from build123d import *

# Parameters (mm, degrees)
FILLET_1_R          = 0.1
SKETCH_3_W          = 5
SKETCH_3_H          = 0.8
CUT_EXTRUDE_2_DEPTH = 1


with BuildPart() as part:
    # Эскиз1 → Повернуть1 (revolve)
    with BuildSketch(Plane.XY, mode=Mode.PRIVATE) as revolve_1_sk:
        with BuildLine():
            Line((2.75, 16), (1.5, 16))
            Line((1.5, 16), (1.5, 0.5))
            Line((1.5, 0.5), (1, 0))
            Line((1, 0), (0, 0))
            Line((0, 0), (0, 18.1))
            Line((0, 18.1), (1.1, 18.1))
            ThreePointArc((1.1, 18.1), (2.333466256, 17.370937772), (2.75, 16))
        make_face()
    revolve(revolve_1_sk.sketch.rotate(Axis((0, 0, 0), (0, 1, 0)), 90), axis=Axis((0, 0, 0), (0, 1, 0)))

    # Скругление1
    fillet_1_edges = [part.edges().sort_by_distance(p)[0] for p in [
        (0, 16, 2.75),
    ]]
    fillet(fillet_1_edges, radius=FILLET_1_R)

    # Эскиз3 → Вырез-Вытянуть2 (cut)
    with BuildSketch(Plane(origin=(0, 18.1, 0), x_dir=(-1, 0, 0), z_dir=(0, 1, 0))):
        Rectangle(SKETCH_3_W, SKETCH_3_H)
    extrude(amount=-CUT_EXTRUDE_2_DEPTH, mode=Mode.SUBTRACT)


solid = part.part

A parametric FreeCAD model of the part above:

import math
import FreeCAD as App
import Part
import Sketcher

V = App.Vector
Q = App.Units.Quantity


def edges_at(feature, points):
    """Names of the edges that pass closest to the given points."""
    edges = feature.Shape.Edges
    near = lambda p: min(range(len(edges)), key=lambda i: edges[i].distToShape(Part.Vertex(*p))[0])
    return sorted({f"Edge{near(p) + 1}" for p in points})


def add_polygon(sketch, points):
    """Adds a closed chain of lines whose ends are joined by coincident constraints."""
    first, n = sketch.GeometryCount, len(points)
    for a, b in zip(points, points[1:] + points[:1]):
        sketch.addGeometry(Part.LineSegment(App.Vector(*a, 0), App.Vector(*b, 0)), False)
    for i in range(n):
        sketch.addConstraint(Sketcher.Constraint("Coincident", first + i, 2, first + (i + 1) % n, 1))

doc = App.newDocument("Part")
body = doc.addObject("PartDesign::Body", "Body")

sketch1 = body.newObject("Sketcher::SketchObject", "Sketch")
sketch1.AttachmentSupport = (doc.getObject("XY_Plane"), [""])
sketch1.MapMode = "FlatFace"
sketch1.addGeometry(Part.LineSegment(V(1.5, 16, 0), V(2.8, 16, 0)), False)
sketch1.addGeometry(Part.ArcOfCircle(Part.Circle(V(0.8, 16.2, 0), V(0, 0, 1), 2), math.radians(-4), math.radians(81)), False)
sketch1.addGeometry(Part.LineSegment(V(1.1, 18.1, 0), V(0, 18.1, 0)), False)
sketch1.addGeometry(Part.LineSegment(V(0, 18.1, 0), V(0, 0, 0)), False)
sketch1.addGeometry(Part.LineSegment(V(0, 0, 0), V(1, 0, 0)), False)
sketch1.addGeometry(Part.LineSegment(V(1, 0, 0), V(1.5, 0.5, 0)), False)
sketch1.addGeometry(Part.LineSegment(V(1.5, 0.5, 0), V(1.5, 16, 0)), False)
sketch1.addConstraint(Sketcher.Constraint("Coincident", 0, 2, 1, 1))
sketch1.addConstraint(Sketcher.Constraint("Coincident", 1, 2, 2, 1))
sketch1.addConstraint(Sketcher.Constraint("Coincident", 2, 2, 3, 1))
sketch1.addConstraint(Sketcher.Constraint("Coincident", 3, 2, 4, 1))
sketch1.addConstraint(Sketcher.Constraint("Coincident", 4, 2, 5, 1))
sketch1.addConstraint(Sketcher.Constraint("Coincident", 5, 2, 6, 1))
sketch1.addConstraint(Sketcher.Constraint("Coincident", 6, 2, 0, 1))
sketch1.addConstraint(Sketcher.Constraint("Horizontal", 0))
sketch1.addConstraint(Sketcher.Constraint("Horizontal", 2))
sketch1.addConstraint(Sketcher.Constraint("Vertical", 3))
sketch1.addConstraint(Sketcher.Constraint("Horizontal", 4))
sketch1.addConstraint(Sketcher.Constraint("Vertical", 6))
sketch1.addConstraint(Sketcher.Constraint("Coincident", 3, 2, -1, 1))
sketch1.addConstraint(Sketcher.Constraint("DistanceX", 4, 1, 4, 2, Q("1 mm")))
sketch1.addConstraint(Sketcher.Constraint("Angle", 5, Q("45 deg")))
sketch1.addConstraint(Sketcher.Constraint("DistanceX", 2, 2, 2, 1, Q("1.1 mm")))
sketch1.addConstraint(Sketcher.Constraint("DistanceY", 3, 2, 3, 1, Q("18.1 mm")))
sketch1.addConstraint(Sketcher.Constraint("DistanceY", 6, 1, 6, 2, Q("15.5 mm")))
sketch1.addConstraint(Sketcher.Constraint("DistanceY", -1, 1, 0, 2, Q("16 mm")))
sketch1.addConstraint(Sketcher.Constraint("DistanceX", 0, 1, 0, 2, Q("1.25 mm")))
sketch1.addConstraint(Sketcher.Constraint("Radius", 1, Q("1.976037 mm")))
revolution = body.newObject("PartDesign::Revolution", "Revolution")
revolution.Profile = sketch1
revolution.ReferenceAxis = (sketch1, ["V_Axis"])
revolution.Angle = 360
doc.recompute()

fillet = body.newObject("PartDesign::Fillet", "Fillet")
fillet.Base = (revolution, edges_at(revolution, [(0, 16, 2.75)]))
fillet.Radius = 0.1

sketch2 = body.newObject("Sketcher::SketchObject", "Sketch001")
sketch2.AttachmentSupport = (doc.getObject("XZ_Plane"), [""])
sketch2.MapMode = "FlatFace"
sketch2.AttachmentOffset = App.Placement(V(0, 0, -18.1), App.Rotation())
add_polygon(sketch2, [(2.5, 0.4), (2.5, -0.4), (-2.5, -0.4), (-2.5, 0.4)])
sketch2.addConstraint(Sketcher.Constraint("Vertical", 0))
sketch2.addConstraint(Sketcher.Constraint("Horizontal", 1))
sketch2.addConstraint(Sketcher.Constraint("Vertical", 2))
sketch2.addConstraint(Sketcher.Constraint("Horizontal", 3))
sketch2.addConstraint(Sketcher.Constraint("Symmetric", 0, 2, 2, 2, -1, 1))
sketch2.addConstraint(Sketcher.Constraint("DistanceX", 1, 2, 1, 1, Q("5 mm")))
sketch2.addConstraint(Sketcher.Constraint("DistanceY", 0, 2, 0, 1, Q("0.8 mm")))
pocket1 = body.newObject("PartDesign::Pocket", "Pocket")
pocket1.Profile = sketch2
pocket1.Length = 1
pocket1.Reversed = True

doc.recompute()
